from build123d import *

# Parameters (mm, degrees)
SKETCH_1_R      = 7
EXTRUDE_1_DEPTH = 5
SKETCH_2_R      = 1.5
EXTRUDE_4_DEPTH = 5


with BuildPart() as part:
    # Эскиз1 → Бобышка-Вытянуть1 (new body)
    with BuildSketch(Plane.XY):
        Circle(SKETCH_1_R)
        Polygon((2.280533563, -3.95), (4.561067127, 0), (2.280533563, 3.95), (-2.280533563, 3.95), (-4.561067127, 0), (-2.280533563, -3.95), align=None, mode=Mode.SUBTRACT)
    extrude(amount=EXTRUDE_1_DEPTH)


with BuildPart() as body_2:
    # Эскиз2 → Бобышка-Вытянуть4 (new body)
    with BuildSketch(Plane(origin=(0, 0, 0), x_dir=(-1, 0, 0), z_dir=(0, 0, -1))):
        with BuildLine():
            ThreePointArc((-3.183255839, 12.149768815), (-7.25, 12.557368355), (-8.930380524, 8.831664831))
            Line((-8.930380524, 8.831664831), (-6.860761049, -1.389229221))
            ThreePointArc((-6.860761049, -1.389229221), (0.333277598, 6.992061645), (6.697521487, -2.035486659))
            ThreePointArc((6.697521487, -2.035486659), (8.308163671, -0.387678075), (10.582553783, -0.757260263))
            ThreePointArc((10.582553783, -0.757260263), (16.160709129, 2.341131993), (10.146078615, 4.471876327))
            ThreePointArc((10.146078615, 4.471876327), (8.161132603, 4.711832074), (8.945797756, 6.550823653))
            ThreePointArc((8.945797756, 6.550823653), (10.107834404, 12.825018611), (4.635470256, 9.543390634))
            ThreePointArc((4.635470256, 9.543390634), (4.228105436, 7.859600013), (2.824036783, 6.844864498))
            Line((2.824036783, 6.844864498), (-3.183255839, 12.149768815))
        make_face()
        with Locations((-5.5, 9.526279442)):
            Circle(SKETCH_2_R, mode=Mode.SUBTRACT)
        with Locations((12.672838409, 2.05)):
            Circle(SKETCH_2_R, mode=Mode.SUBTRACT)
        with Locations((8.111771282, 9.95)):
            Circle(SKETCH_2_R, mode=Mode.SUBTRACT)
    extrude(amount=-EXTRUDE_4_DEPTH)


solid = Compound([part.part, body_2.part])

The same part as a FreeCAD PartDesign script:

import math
import FreeCAD as App
import Part
import Sketcher
Q = App.Units.Quantity

doc = App.newDocument("Part")
body = doc.addObject("PartDesign::Body", "Body")

# Sketch on XY plane
sketch1 = body.newObject("Sketcher::SketchObject", "Sketch")
sketch1.AttachmentSupport = (doc.getObject("XY_Plane"), [""])
sketch1.MapMode = "FlatFace"
sketch1.addGeometry([
    Part.Circle(App.Vector(0, 0, 0), App.Vector(0, 0, 1), 7),  # 0
    Part.LineSegment(App.Vector(4.6, 0, 0), App.Vector(2.3, -4, 0)),  # 1
    Part.LineSegment(App.Vector(2.3, -4, 0), App.Vector(-2.3, -4, 0)),  # 2
    Part.LineSegment(App.Vector(-2.3, -4, 0), App.Vector(-4.6, 0, 0)),  # 3
    Part.LineSegment(App.Vector(-4.6, 0, 0), App.Vector(-2.3, 4, 0)),  # 4
    Part.LineSegment(App.Vector(-2.3, 4, 0), App.Vector(2.3, 4, 0)),  # 5
    Part.LineSegment(App.Vector(2.3, 4, 0), App.Vector(4.6, 0, 0)),  # 6
], False)
sketch1.addConstraint([
    Sketcher.Constraint("Coincident", 1, 2, 2, 1),
    Sketcher.Constraint("Coincident", 2, 2, 3, 1),
    Sketcher.Constraint("Coincident", 3, 2, 4, 1),
    Sketcher.Constraint("Coincident", 4, 2, 5, 1),
    Sketcher.Constraint("Coincident", 5, 2, 6, 1),
    Sketcher.Constraint("Coincident", 6, 2, 1, 1),
    Sketcher.Constraint("Horizontal", 2),
    Sketcher.Constraint("Horizontal", 5),
    Sketcher.Constraint("Coincident", 0, 3, -1, 1),
    Sketcher.Constraint("Symmetric", 1, 2, 4, 2, -1, 1),
    Sketcher.Constraint("Symmetric", 3, 2, 6, 2, -1, 1),
    Sketcher.Constraint("PointOnObject", 3, 2, -1),
    Sketcher.Constraint("Parallel", 3, 6),
    Sketcher.Constraint("Vertical", 2, 2, 4, 2),
    Sketcher.Constraint("Diameter", 0, 14.0),
    Sketcher.Constraint("Angle", 1, Q("-120 deg")),
    Sketcher.Constraint("DistanceY", 2, 2, 4, 2, 7.9),
    Sketcher.Constraint("DistanceX", 3, 2, 1, 2, 6.841601),
])
pad1 = body.newObject("PartDesign::Pad", "Pad")
pad1.Profile = sketch1
pad1.Length = 5
body2 = doc.addObject("PartDesign::Body", "Body001")

# Sketch on XY plane
sketch2 = body2.newObject("Sketcher::SketchObject", "Sketch001")
sketch2.AttachmentSupport = (doc.getObject("XY_Plane001"), [""])
sketch2.MapMode = "FlatFace"
sketch2.addGeometry([
    Part.ArcOfCircle(Part.Circle(App.Vector(5.5, 9.5, 0), App.Vector(0, 0, 1), 3.5), math.radians(-11), math.radians(131)),  # 0
    Part.LineSegment(App.Vector(8.9, 8.8, 0), App.Vector(6.9, -1.4, 0)),  # 1
    Part.ArcOfCircle(Part.Circle(App.Vector(0, 0, 0), App.Vector(0, 0, 1), 7), math.radians(-11), math.radians(197)),  # 2
    Part.ArcOfCircle(Part.Circle(App.Vector(-9.1, -2.8, 0), App.Vector(0, 0, 1), 2.5), math.radians(17), math.radians(127)),  # 3
    Part.ArcOfCircle(Part.Circle(App.Vector(-12.7, 2, 0), App.Vector(0, 0, 1), 3.5), math.radians(44), math.radians(307)),  # 4
    Part.ArcOfCircle(Part.Circle(App.Vector(-9.2, 5.3, 0), App.Vector(0, 0, 1), 1.2), math.radians(-136), math.radians(76)),  # 5
    Part.ArcOfCircle(Part.Circle(App.Vector(-8.1, 9.9, 0), App.Vector(0, 0, 1), 3.5), math.radians(-7), math.radians(256)),  # 6
    Part.ArcOfCircle(Part.Circle(App.Vector(-2.2, 9.3, 0), App.Vector(0, 0, 1), 2.5), math.radians(173), math.radians(254)),  # 7
    Part.LineSegment(App.Vector(-2.8, 6.8, 0), App.Vector(3.2, 12.1, 0)),  # 8
    Part.Circle(App.Vector(-12.7, 2, 0), App.Vector(0, 0, 1), 1.5),  # 9
    Part.Circle(App.Vector(5.5, 9.5, 0), App.Vector(0, 0, 1), 1.5),  # 10
    Part.Circle(App.Vector(-8.1, 9.9, 0), App.Vector(0, 0, 1), 1.5),  # 11
], False)
sketch2.addConstraint([
    Sketcher.Constraint("Tangent", 0, 1, 1, 1),
    Sketcher.Constraint("Tangent", 1, 2, 2, 1),
    Sketcher.Constraint("Tangent", 2, 2, 3, 1),
    Sketcher.Constraint("Tangent", 3, 2, 4, 2),
    Sketcher.Constraint("Tangent", 4, 1, 5, 1),
    Sketcher.Constraint("Tangent", 5, 2, 6, 2),
    Sketcher.Constraint("Tangent", 6, 1, 7, 1),
    Sketcher.Constraint("Coincident", 7, 2, 8, 1),
    Sketcher.Constraint("Tangent", 8, 2, 0, 2),
    Sketcher.Constraint("Coincident", 2, 3, -1, 1),
    Sketcher.Constraint("Coincident", 9, 3, 4, 3),
    Sketcher.Constraint("Coincident", 10, 3, 0, 3),
    Sketcher.Constraint("Coincident", 11, 3, 6, 3),
    Sketcher.Constraint("Equal", 0, 4),
    Sketcher.Constraint("Equal", 4, 6),
    Sketcher.Constraint("Equal", 3, 7),
    Sketcher.Constraint("Equal", 9, 10),
    Sketcher.Constraint("Equal", 10, 11),
    Sketcher.Constraint("Diameter", 9, 3.0),
    Sketcher.Constraint("Radius", 2, 7.0),
    Sketcher.Constraint("Radius", 0, 3.5),
    Sketcher.Constraint("Radius", 3, 2.5),
    Sketcher.Constraint("Radius", 5, 1.25),
    Sketcher.Constraint("DistanceX", -1, 1, 0, 3, 5.5),
    Sketcher.Constraint("DistanceY", 4, 3, 6, 3, 7.9),
    Sketcher.Constraint("DistanceY", -1, 1, 4, 3, 2.05),
    Sketcher.Constraint("DistanceX", 7, 3, -1, 1, 2.152398),
    Sketcher.Constraint("DistanceX", 6, 3, 6, 1, 3.476301),
    Sketcher.Constraint("DistanceY", -1, 1, 0, 3, 9.526279),
    Sketcher.Constraint("DistanceX", 4, 3, -1, 1, 12.672838),
    Sketcher.Constraint("DistanceY", -1, 1, 8, 2, 12.149769),
])
pad2 = body2.newObject("PartDesign::Pad", "Pad001")
pad2.Profile = sketch2
pad2.Length = 5

doc.recompute()
